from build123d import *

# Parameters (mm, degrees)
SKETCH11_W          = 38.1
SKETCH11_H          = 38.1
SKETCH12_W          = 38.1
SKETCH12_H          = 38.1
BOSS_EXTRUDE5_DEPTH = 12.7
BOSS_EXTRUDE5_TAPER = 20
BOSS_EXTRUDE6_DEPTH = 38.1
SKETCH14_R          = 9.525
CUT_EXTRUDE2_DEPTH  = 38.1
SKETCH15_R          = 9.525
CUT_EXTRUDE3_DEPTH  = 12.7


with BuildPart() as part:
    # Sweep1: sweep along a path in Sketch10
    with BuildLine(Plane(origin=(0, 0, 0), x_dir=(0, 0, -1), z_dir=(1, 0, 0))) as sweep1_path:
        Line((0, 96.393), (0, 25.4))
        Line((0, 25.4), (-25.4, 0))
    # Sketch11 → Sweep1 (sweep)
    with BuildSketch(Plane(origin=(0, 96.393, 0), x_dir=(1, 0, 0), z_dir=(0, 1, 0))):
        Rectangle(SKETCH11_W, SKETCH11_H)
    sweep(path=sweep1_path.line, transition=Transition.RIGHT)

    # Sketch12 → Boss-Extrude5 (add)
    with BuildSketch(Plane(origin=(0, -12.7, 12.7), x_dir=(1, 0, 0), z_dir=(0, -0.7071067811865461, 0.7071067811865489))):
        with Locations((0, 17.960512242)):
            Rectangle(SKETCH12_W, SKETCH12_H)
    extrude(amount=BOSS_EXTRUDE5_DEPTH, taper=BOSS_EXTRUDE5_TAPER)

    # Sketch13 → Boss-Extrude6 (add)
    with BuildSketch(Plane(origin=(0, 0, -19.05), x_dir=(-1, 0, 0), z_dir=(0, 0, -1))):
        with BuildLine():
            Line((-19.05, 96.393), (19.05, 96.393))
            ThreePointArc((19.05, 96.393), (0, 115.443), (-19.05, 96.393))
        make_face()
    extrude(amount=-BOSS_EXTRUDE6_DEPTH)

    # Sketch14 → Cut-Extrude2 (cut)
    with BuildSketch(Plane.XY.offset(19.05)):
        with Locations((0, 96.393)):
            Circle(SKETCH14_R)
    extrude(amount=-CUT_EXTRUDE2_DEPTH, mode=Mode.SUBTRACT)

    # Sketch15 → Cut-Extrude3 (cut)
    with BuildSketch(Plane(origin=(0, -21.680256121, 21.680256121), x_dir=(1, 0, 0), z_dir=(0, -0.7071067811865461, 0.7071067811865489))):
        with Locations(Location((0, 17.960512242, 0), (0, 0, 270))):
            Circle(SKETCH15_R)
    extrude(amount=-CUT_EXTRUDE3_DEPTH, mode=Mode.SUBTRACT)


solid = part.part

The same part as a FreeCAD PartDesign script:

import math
import FreeCAD as App
import Part
import Sketcher

V = App.Vector
Q = App.Units.Quantity


def add_polygon(sketch, points):
    """Adds a closed chain of lines whose ends are joined by coincident constraints."""
    first, n = sketch.GeometryCount, len(points)
    for a, b in zip(points, points[1:] + points[:1]):
        sketch.addGeometry(Part.LineSegment(App.Vector(*a, 0), App.Vector(*b, 0)), False)
    for i in range(n):
        sketch.addConstraint(Sketcher.Constraint("Coincident", first + i, 2, first + (i + 1) % n, 1))

doc = App.newDocument("Part")
params = doc.addObject("Spreadsheet::Sheet", "Params")
for row, (alias, value) in enumerate([
    ("sketch1_width", "1.5 in"),
    ("sketch2_width", "2.795 in"),
    ("sketch3_width", "1.5 in"),
    ("pad1_length", "0.5 in"),
    ("pad1_taper", "-20 deg"),
    ("sketch4_radius", "0.75 in"),
    ("pad2_length", "1.5 in"),
    ("sketch5_diameter", "0.75 in"),
    ("pocket1_length", "1.5 in"),
    ("sketch6_diameter", "0.75 in"),
    ("pocket2_length", "0.5 in"),
], start=1):
    params.set(f"A{row}", alias)
    params.set(f"B{row}", "=" + value)
    params.setAlias(f"B{row}", alias)

body = doc.addObject("PartDesign::Body", "Body")

# Sketch on XZ plane
sketch1 = body.newObject("Sketcher::SketchObject", "Sketch")
sketch1.AttachmentSupport = (doc.getObject("XZ_Plane"), [""])
sketch1.MapMode = "FlatFace"
sketch1.AttachmentOffset = App.Placement(V(0, 0, -3.795 * 25.4), App.Rotation())
add_polygon(sketch1, [(-19.05, -19.05), (-19.05, 19.05), (19.05, 19.05), (19.05, -19.05)])  # lines 0-3
sketch1.addConstraint([
    Sketcher.Constraint("Vertical", 0),
    Sketcher.Constraint("Horizontal", 1),
    Sketcher.Constraint("Vertical", 2),
    Sketcher.Constraint("Horizontal", 3),
    Sketcher.Constraint("Symmetric", 0, 2, 2, 2, -1, 1),
    Sketcher.Constraint("Equal", 3, 0),
    Sketcher.Constraint("DistanceX", 1, 1, 1, 2, Q("1.5 in")),
])
sketch1.setExpression("Constraints[10]", "Params.sketch1_width")

# Sketch on YZ plane
sketch2 = body.newObject("Sketcher::SketchObject", "Sketch001")
sketch2.AttachmentSupport = (doc.getObject("YZ_Plane"), [""])
sketch2.MapMode = "FlatFace"
sketch2.addGeometry([
    Part.LineSegment(V(96.393, 0, 0), V(25.4, 0, 0)),
    Part.LineSegment(V(25.4, 0, 0), V(0, 25.4, 0)),
], False)
sketch2.addConstraint([
    Sketcher.Constraint("Coincident", 0, 2, 1, 1),
    Sketcher.Constraint("Horizontal", 0),
    Sketcher.Constraint("PointOnObject", 0, 1, -1),
    Sketcher.Constraint("PointOnObject", 1, 2, -2),
    Sketcher.Constraint("DistanceX", -1, 1, 0, 2, Q("1 in")),
    Sketcher.Constraint("DistanceY", -1, 1, 1, 2, Q("1 in")),
    Sketcher.Constraint("DistanceX", 0, 2, 0, 1, Q("2.795 in")),
])
sketch2.setExpression("Constraints[6]", "Params.sketch2_width")
doc.recompute()

additivepipe = body.newObject("PartDesign::AdditivePipe", "AdditivePipe")
additivepipe.Profile = sketch1
additivepipe.Spine = (sketch2, ["Edge1", "Edge2"])
additivepipe.Transition = "Right corner"

# Sketch on an angled plane
sketch3 = body.newObject("Sketcher::SketchObject", "Sketch002")
sketch3.Placement = App.Placement(V(0, -12.7, 12.7), App.Rotation(V(1, 0, 0), V(0, 0.707106781, 0.707106781), V(0, -0.707106781, 0.707106781), "ZXY"))
add_polygon(sketch3, [(-19.05, 37.010512), (-19.05, -1.089488), (19.05, -1.089488), (19.05, 37.010512)])  # lines 0-3
sketch3.addConstraint([
    Sketcher.Constraint("Vertical", 0),
    Sketcher.Constraint("Horizontal", 1),
    Sketcher.Constraint("Vertical", 2),
    Sketcher.Constraint("Horizontal", 3),
    Sketcher.Constraint("Equal", 3, 0),
    Sketcher.Constraint("DistanceX", 1, 1, 1, 2, Q("1.5 in")),
    Sketcher.Constraint("DistanceX", 0, 2, -1, 1, Q("0.75 in")),
    Sketcher.Constraint("DistanceY", 0, 2, -1, 1, Q("1.089488 mm")),
])
sketch3.setExpression("Constraints[9]", "Params.sketch3_width")
pad1 = body.newObject("PartDesign::Pad", "Pad")
pad1.Profile = sketch3
pad1.setExpression("Length", "Params.pad1_length")
pad1.setExpression("TaperAngle", "Params.pad1_taper")

# Sketch on XY plane
sketch4 = body.newObject("Sketcher::SketchObject", "Sketch003")
sketch4.AttachmentSupport = (doc.getObject("XY_Plane"), [""])
sketch4.MapMode = "FlatFace"
sketch4.AttachmentOffset = App.Placement(V(0, 0, -0.75 * 25.4), App.Rotation())
sketch4.addGeometry([
    Part.LineSegment(V(19.05, 96.393, 0), V(-19.05, 96.393, 0)),
    Part.ArcOfCircle(Part.Circle(V(0, 96.393, 0), V(0, 0, 1), 19.05), math.radians(0), math.radians(180)),
], False)
sketch4.addConstraint([
    Sketcher.Constraint("Coincident", 0, 1, 1, 1),
    Sketcher.Constraint("Coincident", 1, 2, 0, 2),
    Sketcher.Constraint("Horizontal", 0),
    Sketcher.Constraint("PointOnObject", 1, 3, -2),
    Sketcher.Constraint("Horizontal", 1, 3, 0, 1),
    Sketcher.Constraint("Radius", 1, Q("0.75 in")),
    Sketcher.Constraint("DistanceY", -1, 1, 1, 3, Q("3.795 in")),
])
sketch4.setExpression("Constraints[5]", "Params.sketch4_radius")
pad2 = body.newObject("PartDesign::Pad", "Pad001")
pad2.Profile = sketch4
pad2.setExpression("Length", "Params.pad2_length")

# Sketch on XY plane
sketch5 = body.newObject("Sketcher::SketchObject", "Sketch004")
sketch5.AttachmentSupport = (doc.getObject("XY_Plane"), [""])
sketch5.MapMode = "FlatFace"
sketch5.AttachmentOffset = App.Placement(V(0, 0, 0.75 * 25.4), App.Rotation())
sketch5.addGeometry(Part.Circle(V(0, 96.393, 0), V(0, 0, 1), 9.525), False)
sketch5.addConstraint([
    Sketcher.Constraint("PointOnObject", 0, 3, -2),
    Sketcher.Constraint("Diameter", 0, Q("0.75 in")),
    Sketcher.Constraint("DistanceY", -1, 1, 0, 3, Q("3.795 in")),
])
sketch5.setExpression("Constraints[1]", "Params.sketch5_diameter")
pocket1 = body.newObject("PartDesign::Pocket", "Pocket")
pocket1.Profile = sketch5
pocket1.setExpression("Length", "Params.pocket1_length")

# Sketch on an angled plane
sketch6 = body.newObject("Sketcher::SketchObject", "Sketch005")
sketch6.Placement = App.Placement(V(0, -21.680256, 21.680256), App.Rotation(V(1, 0, 0), V(0, 0.707106781, 0.707106781), V(0, -0.707106781, 0.707106781), "ZXY"))
sketch6.addGeometry(Part.Circle(V(0, 17.960512, 0), V(0, 0, 1), 9.525), False)
sketch6.addConstraint([
    Sketcher.Constraint("PointOnObject", 0, 3, -2),
    Sketcher.Constraint("Diameter", 0, Q("0.75 in")),
    Sketcher.Constraint("DistanceY", -1, 1, 0, 3, Q("17.960512 mm")),
])
sketch6.setExpression("Constraints[1]", "Params.sketch6_diameter")
pocket2 = body.newObject("PartDesign::Pocket", "Pocket001")
pocket2.Profile = sketch6
pocket2.setExpression("Length", "Params.pocket2_length")

doc.recompute()
